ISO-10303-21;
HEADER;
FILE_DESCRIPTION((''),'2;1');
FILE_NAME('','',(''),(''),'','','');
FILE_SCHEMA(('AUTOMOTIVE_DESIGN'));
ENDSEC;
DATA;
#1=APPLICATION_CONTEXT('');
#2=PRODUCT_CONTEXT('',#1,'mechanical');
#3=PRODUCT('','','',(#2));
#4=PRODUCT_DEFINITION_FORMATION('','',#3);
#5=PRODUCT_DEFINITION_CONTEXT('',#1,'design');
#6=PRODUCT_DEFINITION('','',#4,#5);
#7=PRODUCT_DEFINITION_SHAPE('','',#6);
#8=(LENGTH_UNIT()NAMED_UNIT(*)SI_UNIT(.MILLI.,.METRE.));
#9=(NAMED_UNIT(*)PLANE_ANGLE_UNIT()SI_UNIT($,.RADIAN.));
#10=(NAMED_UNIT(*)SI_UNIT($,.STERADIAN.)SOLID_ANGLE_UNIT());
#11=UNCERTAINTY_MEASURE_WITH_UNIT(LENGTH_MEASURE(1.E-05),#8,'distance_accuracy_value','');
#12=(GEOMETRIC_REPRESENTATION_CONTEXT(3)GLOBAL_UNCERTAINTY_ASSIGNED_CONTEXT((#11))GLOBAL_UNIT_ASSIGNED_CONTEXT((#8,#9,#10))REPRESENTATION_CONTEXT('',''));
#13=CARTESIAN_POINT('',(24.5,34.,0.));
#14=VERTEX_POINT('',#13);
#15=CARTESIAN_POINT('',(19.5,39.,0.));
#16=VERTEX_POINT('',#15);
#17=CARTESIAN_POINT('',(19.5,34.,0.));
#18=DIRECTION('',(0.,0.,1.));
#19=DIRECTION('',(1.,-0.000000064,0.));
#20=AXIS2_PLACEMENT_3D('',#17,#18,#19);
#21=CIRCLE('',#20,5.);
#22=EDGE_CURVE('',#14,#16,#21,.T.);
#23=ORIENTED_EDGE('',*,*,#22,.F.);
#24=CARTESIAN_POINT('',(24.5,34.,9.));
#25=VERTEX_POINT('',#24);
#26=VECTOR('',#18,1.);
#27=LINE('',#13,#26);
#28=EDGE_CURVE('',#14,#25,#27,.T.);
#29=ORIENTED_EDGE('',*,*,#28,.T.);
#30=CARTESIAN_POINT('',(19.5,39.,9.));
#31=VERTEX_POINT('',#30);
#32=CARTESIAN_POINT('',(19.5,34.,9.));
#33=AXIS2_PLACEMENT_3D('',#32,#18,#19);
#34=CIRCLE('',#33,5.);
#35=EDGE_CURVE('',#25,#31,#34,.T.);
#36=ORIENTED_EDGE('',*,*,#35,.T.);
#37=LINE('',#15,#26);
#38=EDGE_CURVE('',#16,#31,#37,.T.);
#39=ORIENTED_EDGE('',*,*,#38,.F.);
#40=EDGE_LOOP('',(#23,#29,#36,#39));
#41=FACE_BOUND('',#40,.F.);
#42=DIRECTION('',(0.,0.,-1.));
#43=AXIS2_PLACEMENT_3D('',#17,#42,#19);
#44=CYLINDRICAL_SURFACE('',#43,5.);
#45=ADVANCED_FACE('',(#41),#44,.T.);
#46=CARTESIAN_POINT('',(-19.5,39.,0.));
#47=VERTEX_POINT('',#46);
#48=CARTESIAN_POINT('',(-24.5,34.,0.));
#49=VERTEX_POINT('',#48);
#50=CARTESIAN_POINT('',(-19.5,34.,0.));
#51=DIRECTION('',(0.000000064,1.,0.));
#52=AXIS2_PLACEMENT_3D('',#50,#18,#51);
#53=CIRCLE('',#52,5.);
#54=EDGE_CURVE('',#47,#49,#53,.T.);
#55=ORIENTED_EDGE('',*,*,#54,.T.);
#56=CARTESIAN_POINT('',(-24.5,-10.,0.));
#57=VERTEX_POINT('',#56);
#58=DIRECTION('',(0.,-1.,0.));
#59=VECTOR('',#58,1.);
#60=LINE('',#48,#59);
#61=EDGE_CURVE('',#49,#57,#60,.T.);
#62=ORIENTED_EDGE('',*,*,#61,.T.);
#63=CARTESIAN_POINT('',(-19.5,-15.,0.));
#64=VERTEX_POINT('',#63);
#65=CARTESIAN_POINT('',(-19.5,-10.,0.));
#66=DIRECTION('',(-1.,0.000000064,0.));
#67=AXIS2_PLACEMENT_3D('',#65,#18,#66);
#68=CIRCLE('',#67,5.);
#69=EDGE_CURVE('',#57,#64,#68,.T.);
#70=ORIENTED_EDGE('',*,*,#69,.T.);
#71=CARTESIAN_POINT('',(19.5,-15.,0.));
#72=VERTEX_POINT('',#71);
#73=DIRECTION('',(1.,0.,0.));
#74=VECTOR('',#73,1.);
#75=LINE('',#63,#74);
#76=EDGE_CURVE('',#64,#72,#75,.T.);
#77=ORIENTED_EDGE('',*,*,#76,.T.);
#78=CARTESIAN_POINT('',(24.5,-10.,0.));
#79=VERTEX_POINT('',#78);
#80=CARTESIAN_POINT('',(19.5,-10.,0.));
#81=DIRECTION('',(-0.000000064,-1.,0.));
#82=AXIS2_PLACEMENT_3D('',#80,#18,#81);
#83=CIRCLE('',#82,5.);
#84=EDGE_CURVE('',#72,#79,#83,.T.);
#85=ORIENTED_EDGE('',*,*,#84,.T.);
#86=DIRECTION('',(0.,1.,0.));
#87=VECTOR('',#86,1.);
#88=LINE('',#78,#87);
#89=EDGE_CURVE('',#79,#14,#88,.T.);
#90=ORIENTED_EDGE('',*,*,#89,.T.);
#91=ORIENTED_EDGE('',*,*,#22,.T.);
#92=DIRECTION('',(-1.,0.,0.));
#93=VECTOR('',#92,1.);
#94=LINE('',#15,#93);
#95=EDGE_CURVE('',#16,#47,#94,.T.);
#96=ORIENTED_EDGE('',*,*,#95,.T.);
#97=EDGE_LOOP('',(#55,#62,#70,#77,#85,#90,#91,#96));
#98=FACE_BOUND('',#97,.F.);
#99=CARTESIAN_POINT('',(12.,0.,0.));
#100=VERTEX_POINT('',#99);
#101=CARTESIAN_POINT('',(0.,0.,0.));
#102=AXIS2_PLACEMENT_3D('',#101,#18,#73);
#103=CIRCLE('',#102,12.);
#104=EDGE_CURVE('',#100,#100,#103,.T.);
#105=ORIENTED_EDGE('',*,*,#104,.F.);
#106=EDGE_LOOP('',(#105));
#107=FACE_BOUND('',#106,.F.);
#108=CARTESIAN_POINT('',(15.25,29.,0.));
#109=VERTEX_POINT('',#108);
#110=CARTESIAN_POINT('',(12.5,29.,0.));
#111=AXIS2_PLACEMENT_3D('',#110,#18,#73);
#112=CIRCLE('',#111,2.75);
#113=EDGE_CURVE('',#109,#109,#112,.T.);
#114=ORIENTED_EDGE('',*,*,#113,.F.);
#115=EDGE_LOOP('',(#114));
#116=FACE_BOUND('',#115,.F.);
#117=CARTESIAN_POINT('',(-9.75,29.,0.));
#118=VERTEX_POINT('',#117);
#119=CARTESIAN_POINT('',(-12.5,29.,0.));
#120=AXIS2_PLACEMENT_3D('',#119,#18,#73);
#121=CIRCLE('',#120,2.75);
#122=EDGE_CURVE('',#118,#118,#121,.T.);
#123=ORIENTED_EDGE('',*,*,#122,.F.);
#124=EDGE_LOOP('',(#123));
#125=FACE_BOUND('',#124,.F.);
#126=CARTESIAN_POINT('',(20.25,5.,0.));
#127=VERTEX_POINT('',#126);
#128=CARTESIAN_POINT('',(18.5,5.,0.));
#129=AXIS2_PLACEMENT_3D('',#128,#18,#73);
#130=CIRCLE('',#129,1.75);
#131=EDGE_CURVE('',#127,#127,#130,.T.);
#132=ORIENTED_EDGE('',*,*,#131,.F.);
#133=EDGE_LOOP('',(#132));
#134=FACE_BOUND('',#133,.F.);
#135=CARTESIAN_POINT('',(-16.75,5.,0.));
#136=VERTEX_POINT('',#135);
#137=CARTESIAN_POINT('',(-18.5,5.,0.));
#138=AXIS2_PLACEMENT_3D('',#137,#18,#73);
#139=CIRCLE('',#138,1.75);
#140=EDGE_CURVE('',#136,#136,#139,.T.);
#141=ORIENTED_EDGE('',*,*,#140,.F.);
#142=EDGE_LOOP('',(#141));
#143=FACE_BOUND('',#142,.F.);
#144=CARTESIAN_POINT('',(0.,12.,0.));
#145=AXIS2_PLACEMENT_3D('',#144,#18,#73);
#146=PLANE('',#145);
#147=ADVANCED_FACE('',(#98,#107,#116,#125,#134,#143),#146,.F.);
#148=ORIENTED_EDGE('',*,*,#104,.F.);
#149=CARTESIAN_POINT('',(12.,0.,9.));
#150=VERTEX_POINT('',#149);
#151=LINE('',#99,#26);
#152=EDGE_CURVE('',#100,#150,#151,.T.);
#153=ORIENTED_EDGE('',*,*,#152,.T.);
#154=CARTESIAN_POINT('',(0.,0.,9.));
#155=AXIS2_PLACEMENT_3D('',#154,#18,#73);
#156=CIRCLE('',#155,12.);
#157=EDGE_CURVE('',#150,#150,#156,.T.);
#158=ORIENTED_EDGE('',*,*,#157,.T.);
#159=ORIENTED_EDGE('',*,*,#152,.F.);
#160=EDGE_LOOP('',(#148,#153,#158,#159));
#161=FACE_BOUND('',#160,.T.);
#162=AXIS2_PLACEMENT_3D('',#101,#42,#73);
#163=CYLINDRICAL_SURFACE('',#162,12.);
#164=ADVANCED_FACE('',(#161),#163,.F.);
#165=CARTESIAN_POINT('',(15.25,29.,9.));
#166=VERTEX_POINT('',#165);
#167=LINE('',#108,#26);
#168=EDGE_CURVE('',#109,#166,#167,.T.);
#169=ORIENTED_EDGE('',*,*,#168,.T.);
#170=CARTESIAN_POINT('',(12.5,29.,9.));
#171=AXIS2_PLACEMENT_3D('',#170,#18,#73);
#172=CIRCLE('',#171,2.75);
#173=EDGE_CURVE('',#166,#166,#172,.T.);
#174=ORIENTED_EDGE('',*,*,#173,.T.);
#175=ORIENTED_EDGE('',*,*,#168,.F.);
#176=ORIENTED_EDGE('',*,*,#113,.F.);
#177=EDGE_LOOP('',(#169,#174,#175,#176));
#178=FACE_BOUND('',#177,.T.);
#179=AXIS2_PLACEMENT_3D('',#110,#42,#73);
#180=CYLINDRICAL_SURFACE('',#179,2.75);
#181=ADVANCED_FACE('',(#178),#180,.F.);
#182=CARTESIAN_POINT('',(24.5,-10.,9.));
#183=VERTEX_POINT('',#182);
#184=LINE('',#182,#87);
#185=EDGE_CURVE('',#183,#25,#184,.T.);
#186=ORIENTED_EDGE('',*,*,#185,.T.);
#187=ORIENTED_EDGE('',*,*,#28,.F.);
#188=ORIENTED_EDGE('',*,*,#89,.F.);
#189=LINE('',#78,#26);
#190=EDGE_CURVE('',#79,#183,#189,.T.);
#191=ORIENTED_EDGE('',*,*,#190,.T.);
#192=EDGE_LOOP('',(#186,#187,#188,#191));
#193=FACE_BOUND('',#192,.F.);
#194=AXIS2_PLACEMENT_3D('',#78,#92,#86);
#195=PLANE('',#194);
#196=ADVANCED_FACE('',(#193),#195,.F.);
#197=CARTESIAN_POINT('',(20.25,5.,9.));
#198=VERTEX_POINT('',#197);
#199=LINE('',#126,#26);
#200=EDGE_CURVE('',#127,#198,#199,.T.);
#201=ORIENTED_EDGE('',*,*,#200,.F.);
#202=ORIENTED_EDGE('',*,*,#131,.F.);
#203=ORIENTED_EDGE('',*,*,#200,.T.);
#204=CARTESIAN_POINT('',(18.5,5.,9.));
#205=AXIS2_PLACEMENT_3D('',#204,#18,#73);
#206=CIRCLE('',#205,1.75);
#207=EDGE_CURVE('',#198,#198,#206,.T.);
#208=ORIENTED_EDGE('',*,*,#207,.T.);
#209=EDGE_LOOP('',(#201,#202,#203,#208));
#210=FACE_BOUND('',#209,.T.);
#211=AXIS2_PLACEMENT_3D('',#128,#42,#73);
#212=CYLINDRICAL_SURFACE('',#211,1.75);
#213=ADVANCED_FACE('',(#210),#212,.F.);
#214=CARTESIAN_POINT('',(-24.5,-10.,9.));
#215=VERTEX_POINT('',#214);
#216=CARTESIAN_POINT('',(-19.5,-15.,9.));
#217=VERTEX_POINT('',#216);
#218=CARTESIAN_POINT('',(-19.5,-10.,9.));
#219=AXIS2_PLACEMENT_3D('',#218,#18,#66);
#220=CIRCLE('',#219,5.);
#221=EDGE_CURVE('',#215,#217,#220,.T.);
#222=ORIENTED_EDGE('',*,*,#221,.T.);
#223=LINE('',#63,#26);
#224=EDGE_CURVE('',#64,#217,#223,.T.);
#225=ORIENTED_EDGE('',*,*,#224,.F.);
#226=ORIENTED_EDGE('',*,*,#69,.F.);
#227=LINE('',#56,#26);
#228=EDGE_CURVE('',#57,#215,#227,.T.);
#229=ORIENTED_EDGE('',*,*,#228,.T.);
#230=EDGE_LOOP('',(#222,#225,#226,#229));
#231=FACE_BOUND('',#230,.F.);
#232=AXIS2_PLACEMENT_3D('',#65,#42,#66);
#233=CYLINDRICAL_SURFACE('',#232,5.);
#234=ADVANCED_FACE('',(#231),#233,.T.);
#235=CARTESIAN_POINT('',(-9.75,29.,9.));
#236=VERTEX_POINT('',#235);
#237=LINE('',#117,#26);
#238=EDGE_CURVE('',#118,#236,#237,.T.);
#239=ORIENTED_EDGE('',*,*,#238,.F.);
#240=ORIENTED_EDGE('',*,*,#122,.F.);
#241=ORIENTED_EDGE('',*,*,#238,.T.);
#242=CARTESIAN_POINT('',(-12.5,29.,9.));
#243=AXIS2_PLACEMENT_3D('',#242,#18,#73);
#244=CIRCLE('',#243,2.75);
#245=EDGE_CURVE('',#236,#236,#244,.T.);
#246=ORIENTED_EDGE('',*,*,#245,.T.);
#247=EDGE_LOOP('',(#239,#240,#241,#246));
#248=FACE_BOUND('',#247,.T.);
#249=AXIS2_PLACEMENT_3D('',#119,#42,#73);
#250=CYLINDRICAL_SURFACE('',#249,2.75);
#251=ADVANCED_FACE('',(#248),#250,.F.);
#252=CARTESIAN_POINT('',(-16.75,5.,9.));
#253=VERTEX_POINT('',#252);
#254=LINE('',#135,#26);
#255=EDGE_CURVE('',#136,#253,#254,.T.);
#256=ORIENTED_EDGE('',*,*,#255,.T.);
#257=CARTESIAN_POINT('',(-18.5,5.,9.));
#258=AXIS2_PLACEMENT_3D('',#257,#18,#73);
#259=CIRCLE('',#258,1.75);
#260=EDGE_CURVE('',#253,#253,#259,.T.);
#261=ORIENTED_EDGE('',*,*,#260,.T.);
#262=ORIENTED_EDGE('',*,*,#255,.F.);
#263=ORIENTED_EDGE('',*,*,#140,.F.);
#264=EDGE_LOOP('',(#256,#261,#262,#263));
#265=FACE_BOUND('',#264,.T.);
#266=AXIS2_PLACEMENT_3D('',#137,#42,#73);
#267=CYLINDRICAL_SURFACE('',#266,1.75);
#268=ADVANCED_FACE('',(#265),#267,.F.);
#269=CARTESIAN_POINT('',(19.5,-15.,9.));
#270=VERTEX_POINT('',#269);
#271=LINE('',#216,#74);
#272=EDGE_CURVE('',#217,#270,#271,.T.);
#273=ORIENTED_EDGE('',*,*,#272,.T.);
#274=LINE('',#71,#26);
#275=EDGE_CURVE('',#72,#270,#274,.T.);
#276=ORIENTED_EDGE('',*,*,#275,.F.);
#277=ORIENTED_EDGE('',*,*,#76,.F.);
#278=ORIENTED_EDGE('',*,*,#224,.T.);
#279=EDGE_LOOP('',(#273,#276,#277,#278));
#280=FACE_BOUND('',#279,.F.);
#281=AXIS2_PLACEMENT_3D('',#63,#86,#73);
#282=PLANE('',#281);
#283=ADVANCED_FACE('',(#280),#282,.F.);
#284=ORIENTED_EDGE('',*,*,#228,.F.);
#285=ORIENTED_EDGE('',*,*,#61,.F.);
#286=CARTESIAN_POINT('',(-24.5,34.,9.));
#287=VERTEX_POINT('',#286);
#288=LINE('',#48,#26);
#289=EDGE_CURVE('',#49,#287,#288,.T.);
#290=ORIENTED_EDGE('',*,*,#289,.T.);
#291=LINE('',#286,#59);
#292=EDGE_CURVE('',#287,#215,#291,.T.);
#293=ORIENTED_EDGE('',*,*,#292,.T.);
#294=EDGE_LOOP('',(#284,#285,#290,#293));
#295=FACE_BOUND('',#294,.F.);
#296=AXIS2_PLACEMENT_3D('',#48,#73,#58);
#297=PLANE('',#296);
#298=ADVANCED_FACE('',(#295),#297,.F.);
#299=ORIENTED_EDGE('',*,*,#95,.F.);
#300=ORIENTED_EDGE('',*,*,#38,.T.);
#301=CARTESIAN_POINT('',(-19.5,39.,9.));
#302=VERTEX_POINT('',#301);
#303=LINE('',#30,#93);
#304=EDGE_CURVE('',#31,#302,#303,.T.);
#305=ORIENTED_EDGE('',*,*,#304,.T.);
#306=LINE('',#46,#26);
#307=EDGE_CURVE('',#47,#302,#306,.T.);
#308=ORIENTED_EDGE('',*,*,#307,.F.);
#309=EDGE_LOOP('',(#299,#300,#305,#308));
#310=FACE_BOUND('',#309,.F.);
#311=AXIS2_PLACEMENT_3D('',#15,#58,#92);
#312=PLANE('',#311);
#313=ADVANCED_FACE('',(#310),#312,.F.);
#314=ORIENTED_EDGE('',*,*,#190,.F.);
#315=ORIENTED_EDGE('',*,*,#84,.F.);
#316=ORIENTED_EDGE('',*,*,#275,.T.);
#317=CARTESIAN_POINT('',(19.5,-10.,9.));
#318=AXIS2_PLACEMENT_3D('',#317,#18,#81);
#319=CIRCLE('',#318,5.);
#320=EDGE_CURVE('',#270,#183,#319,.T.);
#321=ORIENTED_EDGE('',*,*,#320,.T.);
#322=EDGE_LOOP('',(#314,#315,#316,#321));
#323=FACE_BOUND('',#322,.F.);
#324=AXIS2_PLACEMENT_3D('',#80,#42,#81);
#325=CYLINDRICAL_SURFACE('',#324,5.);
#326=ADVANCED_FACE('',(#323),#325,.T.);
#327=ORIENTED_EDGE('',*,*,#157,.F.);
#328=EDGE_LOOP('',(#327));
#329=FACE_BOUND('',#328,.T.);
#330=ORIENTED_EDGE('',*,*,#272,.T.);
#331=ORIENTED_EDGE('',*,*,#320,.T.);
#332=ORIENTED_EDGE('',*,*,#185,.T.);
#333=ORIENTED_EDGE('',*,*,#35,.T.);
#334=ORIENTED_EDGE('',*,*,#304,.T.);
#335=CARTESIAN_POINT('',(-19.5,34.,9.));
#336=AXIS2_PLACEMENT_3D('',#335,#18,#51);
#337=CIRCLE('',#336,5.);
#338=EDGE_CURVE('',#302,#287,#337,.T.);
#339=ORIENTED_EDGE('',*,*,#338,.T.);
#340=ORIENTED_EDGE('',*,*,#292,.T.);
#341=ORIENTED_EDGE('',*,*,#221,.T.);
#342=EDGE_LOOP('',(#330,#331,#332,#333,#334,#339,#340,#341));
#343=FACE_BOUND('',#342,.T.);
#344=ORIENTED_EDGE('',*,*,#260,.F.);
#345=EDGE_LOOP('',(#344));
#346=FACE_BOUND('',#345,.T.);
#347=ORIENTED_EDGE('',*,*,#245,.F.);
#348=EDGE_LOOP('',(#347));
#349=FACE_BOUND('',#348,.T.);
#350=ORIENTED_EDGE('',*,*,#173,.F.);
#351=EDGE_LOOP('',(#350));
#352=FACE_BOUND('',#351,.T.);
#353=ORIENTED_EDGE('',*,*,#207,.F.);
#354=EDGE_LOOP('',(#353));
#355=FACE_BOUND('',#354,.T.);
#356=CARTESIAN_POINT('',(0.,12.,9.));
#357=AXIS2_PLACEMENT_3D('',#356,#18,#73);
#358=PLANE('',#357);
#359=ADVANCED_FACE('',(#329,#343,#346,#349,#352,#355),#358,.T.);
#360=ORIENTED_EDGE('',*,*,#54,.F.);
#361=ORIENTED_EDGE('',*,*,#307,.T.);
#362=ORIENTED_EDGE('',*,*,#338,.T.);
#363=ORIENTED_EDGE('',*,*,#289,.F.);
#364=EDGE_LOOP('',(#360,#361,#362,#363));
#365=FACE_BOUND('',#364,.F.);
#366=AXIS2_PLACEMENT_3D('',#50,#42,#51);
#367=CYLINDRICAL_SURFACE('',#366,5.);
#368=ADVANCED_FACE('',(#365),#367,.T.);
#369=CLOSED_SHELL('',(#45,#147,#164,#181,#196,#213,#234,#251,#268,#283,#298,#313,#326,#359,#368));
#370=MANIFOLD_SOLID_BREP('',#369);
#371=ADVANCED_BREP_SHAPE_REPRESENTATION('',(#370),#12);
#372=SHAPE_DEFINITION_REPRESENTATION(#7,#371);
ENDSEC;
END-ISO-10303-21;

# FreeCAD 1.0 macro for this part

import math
import FreeCAD as App
import Part
import Sketcher
from FreeCAD import Vector

doc = App.newDocument("Part")
body = doc.addObject("PartDesign::Body", "Body")

sketch1 = doc.addObject("Sketcher::SketchObject", "Sketch")
body.addObject(sketch1)
sketch1.AttachmentSupport = (doc.XY_Plane, [""])
sketch1.MapMode = "FlatFace"
sketch1.addGeometry([
    Part.LineSegment(Vector(19.5, 39, 0), Vector(-19.5, 39, 0)),
    Part.ArcOfCircle(Part.Circle(Vector(-19.5, 34, 0), Vector(0, 0, 1), 5), math.radians(90), math.radians(180)),
    Part.LineSegment(Vector(-24.5, 34, 0), Vector(-24.5, -10, 0)),
    Part.ArcOfCircle(Part.Circle(Vector(-19.5, -10, 0), Vector(0, 0, 1), 5), math.radians(180), math.radians(270)),
    Part.LineSegment(Vector(-19.5, -15, 0), Vector(19.5, -15, 0)),
    Part.ArcOfCircle(Part.Circle(Vector(19.5, -10, 0), Vector(0, 0, 1), 5), math.radians(-90), math.radians(0)),
    Part.LineSegment(Vector(24.5, -10, 0), Vector(24.5, 34, 0)),
    Part.ArcOfCircle(Part.Circle(Vector(19.5, 34, 0), Vector(0, 0, 1), 5), math.radians(0), math.radians(90)),
    Part.Circle(Vector(-18.5, 5, 0), Vector(0, 0, 1), 1.8),
    Part.Circle(Vector(0, 0, 0), Vector(0, 0, 1), 12),
    Part.Circle(Vector(18.5, 5, 0), Vector(0, 0, 1), 1.8),
    Part.Circle(Vector(-12.5, 29, 0), Vector(0, 0, 1), 2.8),
    Part.Circle(Vector(12.5, 29, 0), Vector(0, 0, 1), 2.8),
], False)
sketch1.addConstraint([
    Sketcher.Constraint("Tangent", 0, 2, 1, 1),
    Sketcher.Constraint("Tangent", 1, 2, 2, 1),
    Sketcher.Constraint("Tangent", 2, 2, 3, 1),
    Sketcher.Constraint("Tangent", 3, 2, 4, 1),
    Sketcher.Constraint("Tangent", 4, 2, 5, 1),
    Sketcher.Constraint("Tangent", 5, 2, 6, 1),
    Sketcher.Constraint("Tangent", 6, 2, 7, 1),
    Sketcher.Constraint("Tangent", 7, 2, 0, 1),
    Sketcher.Constraint("Horizontal", 0),
    Sketcher.Constraint("Vertical", 2),
    Sketcher.Constraint("Horizontal", 4),
    Sketcher.Constraint("Vertical", 6),
    Sketcher.Constraint("Coincident", 9, 3, -1, 1),
    Sketcher.Constraint("Equal", 1, 3),
    Sketcher.Constraint("Equal", 3, 5),
    Sketcher.Constraint("Equal", 5, 7),
    Sketcher.Constraint("Equal", 8, 10),
    Sketcher.Constraint("Equal", 11, 12),
    Sketcher.Constraint("Symmetric", 8, 3, 10, 3, -2),
    Sketcher.Constraint("Symmetric", 11, 3, 12, 3, -2),
    Sketcher.Constraint("Diameter", 9, 24.0),
    Sketcher.Constraint("Radius", 1, 5.0),
    Sketcher.Constraint("Diameter", 8, 3.5),
    Sketcher.Constraint("Diameter", 11, 5.5),
    Sketcher.Constraint("DistanceX", 0, 2, 0, 1, 39.0),
    Sketcher.Constraint("DistanceY", 2, 2, 2, 1, 44.0),
    Sketcher.Constraint("DistanceY", -1, 1, 1, 3, 34.0),
    Sketcher.Constraint("DistanceY", -1, 1, 8, 3, 5.0),
    Sketcher.Constraint("DistanceY", -1, 1, 11, 3, 29.0),
    Sketcher.Constraint("DistanceX", 3, 3, 8, 3, 1.0),
    Sketcher.Constraint("DistanceX", 10, 3, 5, 3, 1.0),
    Sketcher.Constraint("DistanceX", 1, 3, 11, 3, 7.0),
])
pad1 = doc.addObject("PartDesign::Pad", "Pad")
body.addObject(pad1)
pad1.Profile = sketch1
pad1.Length = 9

doc.recompute()
